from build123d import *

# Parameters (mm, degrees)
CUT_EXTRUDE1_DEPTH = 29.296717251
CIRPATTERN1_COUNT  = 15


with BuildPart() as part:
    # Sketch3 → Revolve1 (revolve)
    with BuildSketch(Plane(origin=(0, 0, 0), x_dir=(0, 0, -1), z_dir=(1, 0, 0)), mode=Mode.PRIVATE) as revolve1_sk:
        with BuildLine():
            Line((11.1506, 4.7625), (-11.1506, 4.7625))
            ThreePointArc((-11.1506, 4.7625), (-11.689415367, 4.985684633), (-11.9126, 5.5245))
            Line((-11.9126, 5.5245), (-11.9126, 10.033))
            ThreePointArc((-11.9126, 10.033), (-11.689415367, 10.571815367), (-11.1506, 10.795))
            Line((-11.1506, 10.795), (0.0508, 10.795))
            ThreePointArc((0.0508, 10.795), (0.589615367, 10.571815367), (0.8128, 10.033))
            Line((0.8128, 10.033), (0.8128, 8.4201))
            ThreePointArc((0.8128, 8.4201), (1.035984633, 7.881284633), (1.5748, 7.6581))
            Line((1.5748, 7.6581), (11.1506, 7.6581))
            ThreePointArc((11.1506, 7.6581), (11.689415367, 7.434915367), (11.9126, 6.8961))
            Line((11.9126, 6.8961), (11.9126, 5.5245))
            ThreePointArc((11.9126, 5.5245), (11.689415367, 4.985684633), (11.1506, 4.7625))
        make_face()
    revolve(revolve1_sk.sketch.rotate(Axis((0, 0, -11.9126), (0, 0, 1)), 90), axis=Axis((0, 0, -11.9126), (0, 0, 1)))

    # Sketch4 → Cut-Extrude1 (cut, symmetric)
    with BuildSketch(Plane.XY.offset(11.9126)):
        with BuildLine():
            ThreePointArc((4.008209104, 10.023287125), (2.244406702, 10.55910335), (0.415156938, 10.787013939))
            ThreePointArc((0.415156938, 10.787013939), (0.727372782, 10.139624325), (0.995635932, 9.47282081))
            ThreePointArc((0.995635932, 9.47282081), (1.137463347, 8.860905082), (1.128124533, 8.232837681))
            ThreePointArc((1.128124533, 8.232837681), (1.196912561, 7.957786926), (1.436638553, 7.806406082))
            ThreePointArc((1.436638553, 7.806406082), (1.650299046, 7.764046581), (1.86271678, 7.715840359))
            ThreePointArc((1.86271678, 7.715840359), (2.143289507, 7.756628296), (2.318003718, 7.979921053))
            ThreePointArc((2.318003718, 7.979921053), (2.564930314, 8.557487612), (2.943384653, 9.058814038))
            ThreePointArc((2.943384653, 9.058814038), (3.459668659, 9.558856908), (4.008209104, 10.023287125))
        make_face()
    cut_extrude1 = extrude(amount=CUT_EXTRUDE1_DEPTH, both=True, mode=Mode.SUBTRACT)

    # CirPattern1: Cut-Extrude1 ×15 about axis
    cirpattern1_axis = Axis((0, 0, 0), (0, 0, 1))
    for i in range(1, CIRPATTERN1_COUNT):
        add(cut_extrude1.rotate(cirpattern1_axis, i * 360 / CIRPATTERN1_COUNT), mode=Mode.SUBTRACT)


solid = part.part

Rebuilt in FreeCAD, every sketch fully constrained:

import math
import FreeCAD as App
import Part
import Sketcher
from FreeCAD import Vector
Q = App.Units.Quantity

doc = App.newDocument("Part")
body = doc.addObject("PartDesign::Body", "Body")

# Sketch on YZ plane
sketch1 = body.newObject("Sketcher::SketchObject", "Sketch")
sketch1.AttachmentSupport = (doc.getObject("YZ_Plane"), [""])
sketch1.MapMode = "FlatFace"
sketch1.addGeometry([
    Part.LineSegment(Vector(4.8, 11.2, 0), Vector(4.8, -11.2, 0)),  # 0
    Part.ArcOfCircle(Part.Circle(Vector(5.5, -11.2, 0), Vector(0, 0, 1), 0.8), math.radians(-180), math.radians(-90)),  # 1
    Part.LineSegment(Vector(5.5, -11.9, 0), Vector(6.9, -11.9, 0)),  # 2
    Part.ArcOfCircle(Part.Circle(Vector(6.9, -11.2, 0), Vector(0, 0, 1), 0.8), math.radians(-90), math.radians(0)),  # 3
    Part.LineSegment(Vector(7.7, -11.2, 0), Vector(7.7, -1.6, 0)),  # 4
    Part.ArcOfCircle(Part.Circle(Vector(8.4, -1.6, 0), Vector(0, 0, 1), 0.8), math.radians(90), math.radians(180)),  # 5
    Part.LineSegment(Vector(8.4, -0.8, 0), Vector(10, -0.8, 0)),  # 6
    Part.ArcOfCircle(Part.Circle(Vector(10, -0.1, 0), Vector(0, 0, 1), 0.8), math.radians(-90), math.radians(0)),  # 7
    Part.LineSegment(Vector(10.8, -0.1, 0), Vector(10.8, 11.2, 0)),  # 8
    Part.ArcOfCircle(Part.Circle(Vector(10, 11.2, 0), Vector(0, 0, 1), 0.8), math.radians(0), math.radians(90)),  # 9
    Part.LineSegment(Vector(10, 11.9, 0), Vector(5.5, 11.9, 0)),  # 10
    Part.ArcOfCircle(Part.Circle(Vector(5.5, 11.2, 0), Vector(0, 0, 1), 0.8), math.radians(90), math.radians(180)),  # 11
], False)
sketch1.addConstraint([
    Sketcher.Constraint("Tangent", 0, 2, 1, 1),
    Sketcher.Constraint("Tangent", 1, 2, 2, 1),
    Sketcher.Constraint("Tangent", 2, 2, 3, 1),
    Sketcher.Constraint("Tangent", 3, 2, 4, 1),
    Sketcher.Constraint("Tangent", 4, 2, 5, 2),
    Sketcher.Constraint("Tangent", 5, 1, 6, 1),
    Sketcher.Constraint("Tangent", 6, 2, 7, 1),
    Sketcher.Constraint("Tangent", 7, 2, 8, 1),
    Sketcher.Constraint("Tangent", 8, 2, 9, 1),
    Sketcher.Constraint("Tangent", 9, 2, 10, 1),
    Sketcher.Constraint("Tangent", 10, 2, 11, 1),
    Sketcher.Constraint("Tangent", 11, 2, 0, 1),
    Sketcher.Constraint("Vertical", 0),
    Sketcher.Constraint("Horizontal", 2),
    Sketcher.Constraint("Vertical", 4),
    Sketcher.Constraint("Horizontal", 6),
    Sketcher.Constraint("Vertical", 8),
    Sketcher.Constraint("Horizontal", 10),
    Sketcher.Constraint("Equal", 1, 3),
    Sketcher.Constraint("Equal", 3, 5),
    Sketcher.Constraint("Equal", 5, 7),
    Sketcher.Constraint("Equal", 7, 9),
    Sketcher.Constraint("Equal", 9, 11),
    Sketcher.Constraint("Radius", 1, Q("0.03 in")),
    Sketcher.Constraint("DistanceX", 2, 1, 2, 2, Q("0.054 in")),
    Sketcher.Constraint("DistanceY", 0, 2, 0, 1, Q("0.878 in")),
    Sketcher.Constraint("DistanceY", 4, 1, 4, 2, Q("0.377 in")),
    Sketcher.Constraint("DistanceX", 6, 1, 6, 2, Q("0.0635 in")),
    Sketcher.Constraint("DistanceY", 1, 3, -1, 1, Q("0.439 in")),
    Sketcher.Constraint("DistanceX", -1, 1, 7, 3, Q("0.395 in")),
])
revolution = body.newObject("PartDesign::Revolution", "Revolution")
revolution.Profile = sketch1
revolution.ReferenceAxis = (sketch1, ["V_Axis"])
revolution.Angle = 360

# Sketch on XY plane
sketch2 = body.newObject("Sketcher::SketchObject", "Sketch001")
sketch2.AttachmentSupport = (doc.getObject("XY_Plane"), [""])
sketch2.MapMode = "FlatFace"
sketch2.AttachmentOffset = App.Placement(Vector(0, 0, 0.469 * 25.4), App.Rotation())
sketch2.addGeometry([
    Part.ArcOfCircle(Part.Circle(Vector(0, 0, 0), Vector(0, 0, 1), 10.795), math.radians(68.20404), math.radians(87.79596)),  # 0
    Part.ArcOfCircle(Part.Circle(Vector(-9.107266, 5.795665, 0), Vector(0, 0, 1), 10.751283), math.radians(20), math.radians(27.662087)),  # 1
    Part.ArcOfCircle(Part.Circle(Vector(-1.443155, 8.585173, 0), Vector(0, 0, 1), 2.595307), math.radians(-7.802501), math.radians(20)),  # 2
    Part.ArcOfCircle(Part.Circle(Vector(1.505597, 8.181114, 0), Vector(0, 0, 1), 0.381), math.radians(172.197499), math.radians(259.572347)),  # 3
    Part.ArcOfCircle(Part.Circle(Vector(0, 0.000001, 0), Vector(0, 0, 1), 7.937499), math.radians(76.427653), math.radians(79.572347)),  # 4
    Part.ArcOfCircle(Part.Circle(Vector(1.952127, 8.086201, 0), Vector(0, 0, 1), 0.381), math.radians(-103.572347), math.radians(-16.197499)),  # 5
    Part.ArcOfCircle(Part.Circle(Vector(4.810292, 7.255962, 0), Vector(0, 0, 1), 2.595307), math.radians(136), math.radians(163.802501)),  # 6
    Part.ArcOfCircle(Part.Circle(Vector(10.677211, 1.590345, 0), Vector(0, 0, 1), 10.751283), math.radians(128.337913), math.radians(136)),  # 7
], False)
sketch2.addConstraint([
    Sketcher.Constraint("Coincident", 0, 2, 1, 2),
    Sketcher.Constraint("Coincident", 1, 1, 2, 2),
    Sketcher.Constraint("Coincident", 2, 1, 3, 1),
    Sketcher.Constraint("Coincident", 3, 2, 4, 2),
    Sketcher.Constraint("Coincident", 4, 1, 5, 1),
    Sketcher.Constraint("Coincident", 5, 2, 6, 2),
    Sketcher.Constraint("Coincident", 6, 1, 7, 2),
    Sketcher.Constraint("Coincident", 7, 1, 0, 1),
    Sketcher.Constraint("Coincident", 0, 3, -1, 1),
    Sketcher.Constraint("Coincident", 4, 3, -1, 1),
    Sketcher.Constraint("Radius", 0, Q("0.425 in")),
    Sketcher.Constraint("Radius", 3, Q("0.015 in")),
    Sketcher.Constraint("Radius", 4, Q("0.3125 in")),
    Sketcher.Constraint("Radius", 5, Q("0.015 in")),
    Sketcher.Constraint("Radius", 1, 10.751283),
    Sketcher.Constraint("Radius", 2, 2.595307),
    Sketcher.Constraint("Radius", 6, 2.595307),
    Sketcher.Constraint("Radius", 7, 10.751283),
    Sketcher.Constraint("DistanceY", -1, 1, 5, 3, 8.086201),
    Sketcher.Constraint("DistanceY", 3, 3, 0, 2, 2.6059),
    Sketcher.Constraint("DistanceY", 3, 3, 6, 1, 0.8777),
    Sketcher.Constraint("DistanceX", -1, 1, 7, 3, 10.677211),
    Sketcher.Constraint("DistanceY", -1, 1, 1, 1, 9.472821),
    Sketcher.Constraint("DistanceX", -1, 1, 3, 2, 1.436639),
    Sketcher.Constraint("DistanceY", -1, 1, 4, 1, 7.71584),
    Sketcher.Constraint("DistanceY", -1, 1, 5, 2, 7.979921),
    Sketcher.Constraint("DistanceX", -1, 1, 7, 1, 4.008209),
    Sketcher.Constraint("DistanceX", 1, 3, 2, 3, 7.664111),
    Sketcher.Constraint("DistanceY", 3, 3, 2, 3, 0.40406),
    Sketcher.Constraint("DistanceX", 1, 1, 2, 1, 0.132489),
])
pocket1 = body.newObject("PartDesign::Pocket", "Pocket")
pocket1.Profile = sketch2
pocket1.Length = 58.593435
pocket1.Midplane = True
doc.recompute()

polarpattern = body.newObject("PartDesign::PolarPattern", "PolarPattern")
polarpattern.Originals = [pocket1]
polarpattern.Axis = (doc.getObject("Z_Axis"), [""])
polarpattern.Angle = 360
polarpattern.Occurrences = 15
body.Tip = polarpattern

doc.recompute()
